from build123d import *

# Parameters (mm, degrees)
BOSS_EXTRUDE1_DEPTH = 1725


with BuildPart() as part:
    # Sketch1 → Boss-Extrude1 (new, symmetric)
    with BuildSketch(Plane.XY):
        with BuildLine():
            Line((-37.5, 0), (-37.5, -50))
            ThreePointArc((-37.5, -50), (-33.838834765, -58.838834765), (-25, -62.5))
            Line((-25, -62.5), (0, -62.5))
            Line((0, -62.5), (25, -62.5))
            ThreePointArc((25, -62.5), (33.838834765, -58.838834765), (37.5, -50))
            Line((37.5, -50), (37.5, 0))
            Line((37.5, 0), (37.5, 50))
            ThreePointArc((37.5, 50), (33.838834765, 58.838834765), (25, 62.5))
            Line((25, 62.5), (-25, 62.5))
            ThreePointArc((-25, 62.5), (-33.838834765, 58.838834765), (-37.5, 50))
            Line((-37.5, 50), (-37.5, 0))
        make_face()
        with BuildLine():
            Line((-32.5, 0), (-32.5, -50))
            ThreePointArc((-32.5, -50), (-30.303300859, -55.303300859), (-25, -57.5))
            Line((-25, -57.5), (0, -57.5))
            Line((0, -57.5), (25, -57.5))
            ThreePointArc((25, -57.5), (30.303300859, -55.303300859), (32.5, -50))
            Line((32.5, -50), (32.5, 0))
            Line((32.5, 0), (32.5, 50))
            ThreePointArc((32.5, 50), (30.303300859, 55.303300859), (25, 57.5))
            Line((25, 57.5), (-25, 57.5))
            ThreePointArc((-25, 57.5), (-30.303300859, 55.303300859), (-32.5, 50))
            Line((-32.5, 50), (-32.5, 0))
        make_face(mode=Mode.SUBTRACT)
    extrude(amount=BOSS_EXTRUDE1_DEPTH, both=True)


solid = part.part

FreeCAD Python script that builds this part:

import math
import FreeCAD as App
import Part
import Sketcher

V = App.Vector

doc = App.newDocument("Part")
body = doc.addObject("PartDesign::Body", "Body")

# Sketch on XY plane
sketch1 = body.newObject("Sketcher::SketchObject", "Sketch")
sketch1.AttachmentSupport = (doc.getObject("XY_Plane"), [""])
sketch1.MapMode = "FlatFace"
sketch1.addGeometry([
    Part.ArcOfCircle(Part.Circle(V(-25, -50, 0), V(0, 0, 1), 12), math.radians(180), math.radians(270)),  # 0
    Part.LineSegment(V(-25, -62, 0), V(25, -62, 0)),  # 1
    Part.ArcOfCircle(Part.Circle(V(25, -50, 0), V(0, 0, 1), 12), math.radians(-90), math.radians(0)),  # 2
    Part.LineSegment(V(38, -50, 0), V(38, 50, 0)),  # 3
    Part.ArcOfCircle(Part.Circle(V(25, 50, 0), V(0, 0, 1), 12), math.radians(0), math.radians(90)),  # 4
    Part.LineSegment(V(25, 62, 0), V(-25, 62, 0)),  # 5
    Part.ArcOfCircle(Part.Circle(V(-25, 50, 0), V(0, 0, 1), 12), math.radians(90), math.radians(180)),  # 6
    Part.LineSegment(V(-38, 50, 0), V(-38, -50, 0)),  # 7
    Part.ArcOfCircle(Part.Circle(V(-25, -50, 0), V(0, 0, 1), 8), math.radians(180), math.radians(270)),  # 8
    Part.LineSegment(V(-32, -50, 0), V(-32, 50, 0)),  # 9
    Part.ArcOfCircle(Part.Circle(V(-25, 50, 0), V(0, 0, 1), 8), math.radians(90), math.radians(180)),  # 10
    Part.LineSegment(V(-25, 58, 0), V(25, 58, 0)),  # 11
    Part.ArcOfCircle(Part.Circle(V(25, 50, 0), V(0, 0, 1), 8), math.radians(0), math.radians(90)),  # 12
    Part.LineSegment(V(32, 50, 0), V(32, -50, 0)),  # 13
    Part.ArcOfCircle(Part.Circle(V(25, -50, 0), V(0, 0, 1), 8), math.radians(-90), math.radians(0)),  # 14
    Part.LineSegment(V(25, -58, 0), V(-25, -58, 0)),  # 15
], False)
sketch1.addConstraint([
    Sketcher.Constraint("Tangent", 0, 2, 1, 1),
    Sketcher.Constraint("Tangent", 1, 2, 2, 1),
    Sketcher.Constraint("Tangent", 2, 2, 3, 1),
    Sketcher.Constraint("Tangent", 3, 2, 4, 1),
    Sketcher.Constraint("Tangent", 4, 2, 5, 1),
    Sketcher.Constraint("Tangent", 5, 2, 6, 1),
    Sketcher.Constraint("Tangent", 6, 2, 7, 1),
    Sketcher.Constraint("Tangent", 7, 2, 0, 1),
    Sketcher.Constraint("Tangent", 8, 1, 9, 1),
    Sketcher.Constraint("Tangent", 9, 2, 10, 2),
    Sketcher.Constraint("Tangent", 10, 1, 11, 1),
    Sketcher.Constraint("Tangent", 11, 2, 12, 2),
    Sketcher.Constraint("Tangent", 12, 1, 13, 1),
    Sketcher.Constraint("Tangent", 13, 2, 14, 2),
    Sketcher.Constraint("Tangent", 14, 1, 15, 1),
    Sketcher.Constraint("Tangent", 15, 2, 8, 2),
    Sketcher.Constraint("Horizontal", 1),
    Sketcher.Constraint("Vertical", 3),
    Sketcher.Constraint("Horizontal", 5),
    Sketcher.Constraint("Vertical", 7),
    Sketcher.Constraint("Vertical", 9),
    Sketcher.Constraint("Horizontal", 11),
    Sketcher.Constraint("Vertical", 13),
    Sketcher.Constraint("Horizontal", 15),
    Sketcher.Constraint("Coincident", 8, 3, 0, 3),
    Sketcher.Constraint("Coincident", 10, 3, 6, 3),
    Sketcher.Constraint("Coincident", 12, 3, 4, 3),
    Sketcher.Constraint("Equal", 0, 2),
    Sketcher.Constraint("Equal", 2, 4),
    Sketcher.Constraint("Equal", 4, 6),
    Sketcher.Constraint("Equal", 12, 14),
    Sketcher.Constraint("Symmetric", 0, 3, 4, 3, -1, 1),
    Sketcher.Constraint("Radius", 0, 12.5),
    Sketcher.Constraint("Radius", 8, 7.5),
    Sketcher.Constraint("DistanceX", 1, 1, 1, 2, 50.0),
    Sketcher.Constraint("DistanceY", 3, 1, 3, 2, 100.0),
])
pad1 = body.newObject("PartDesign::Pad", "Pad")
pad1.Profile = sketch1
pad1.Length = 3450
pad1.Midplane = True

doc.recompute()
